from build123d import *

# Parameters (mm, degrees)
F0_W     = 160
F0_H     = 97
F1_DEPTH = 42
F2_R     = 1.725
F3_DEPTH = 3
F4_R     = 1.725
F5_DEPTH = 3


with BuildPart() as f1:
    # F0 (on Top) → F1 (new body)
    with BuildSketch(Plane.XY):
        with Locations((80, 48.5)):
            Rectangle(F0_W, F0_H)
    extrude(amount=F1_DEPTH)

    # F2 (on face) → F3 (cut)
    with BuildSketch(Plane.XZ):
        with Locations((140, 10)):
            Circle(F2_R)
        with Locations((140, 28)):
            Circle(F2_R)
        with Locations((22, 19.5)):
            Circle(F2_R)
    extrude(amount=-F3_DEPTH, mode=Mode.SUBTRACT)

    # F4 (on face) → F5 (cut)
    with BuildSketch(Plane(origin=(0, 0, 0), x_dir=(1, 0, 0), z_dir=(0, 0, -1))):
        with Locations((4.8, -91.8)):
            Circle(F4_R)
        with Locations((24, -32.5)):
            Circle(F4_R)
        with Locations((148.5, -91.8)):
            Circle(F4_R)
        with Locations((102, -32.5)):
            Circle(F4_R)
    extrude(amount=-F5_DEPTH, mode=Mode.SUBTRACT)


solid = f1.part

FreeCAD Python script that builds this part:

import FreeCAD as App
import Part
import Sketcher


def add_polygon(sketch, points):
    """Adds a closed chain of lines whose ends are joined by coincident constraints."""
    first, n = sketch.GeometryCount, len(points)
    for a, b in zip(points, points[1:] + points[:1]):
        sketch.addGeometry(Part.LineSegment(App.Vector(*a, 0), App.Vector(*b, 0)), False)
    for i in range(n):
        sketch.addConstraint(Sketcher.Constraint("Coincident", first + i, 2, first + (i + 1) % n, 1))

doc = App.newDocument("Part")
body = doc.addObject("PartDesign::Body", "Body")

# Sketch on XY plane
sketch1 = body.newObject("Sketcher::SketchObject", "Sketch")
sketch1.AttachmentSupport = (doc.getObject("XY_Plane"), [""])
sketch1.MapMode = "FlatFace"
add_polygon(sketch1, [(0, 97), (0, 0), (160, 0), (160, 97)])  # lines 0-3
sketch1.addConstraint(Sketcher.Constraint("Vertical", 0))
sketch1.addConstraint(Sketcher.Constraint("Horizontal", 1))
sketch1.addConstraint(Sketcher.Constraint("Vertical", 2))
sketch1.addConstraint(Sketcher.Constraint("Horizontal", 3))
sketch1.addConstraint(Sketcher.Constraint("Coincident", 0, 2, -1, 1))
sketch1.addConstraint(Sketcher.Constraint("DistanceX", 1, 1, 1, 2, 160.0))
sketch1.addConstraint(Sketcher.Constraint("DistanceY", 0, 2, 0, 1, 97.0))
pad1 = body.newObject("PartDesign::Pad", "Pad")
pad1.Profile = sketch1
pad1.Length = 42

# Sketch on XZ plane
sketch2 = body.newObject("Sketcher::SketchObject", "Sketch001")
sketch2.AttachmentSupport = (doc.getObject("XZ_Plane"), [""])
sketch2.MapMode = "FlatFace"
sketch2.addGeometry(Part.Circle(App.Vector(140, 10, 0), App.Vector(0, 0, 1), 1.725), False)
sketch2.addGeometry(Part.Circle(App.Vector(140, 28, 0), App.Vector(0, 0, 1), 1.725), False)
sketch2.addGeometry(Part.Circle(App.Vector(22, 19.5, 0), App.Vector(0, 0, 1), 1.725), False)
sketch2.addConstraint(Sketcher.Constraint("Equal", 0, 1))
sketch2.addConstraint(Sketcher.Constraint("Equal", 1, 2))
sketch2.addConstraint(Sketcher.Constraint("Vertical", 0, 3, 1, 3))
sketch2.addConstraint(Sketcher.Constraint("Diameter", 0, 3.45))
sketch2.addConstraint(Sketcher.Constraint("DistanceX", -1, 1, 0, 3, 140.0))
sketch2.addConstraint(Sketcher.Constraint("DistanceY", -1, 1, 0, 3, 10.0))
sketch2.addConstraint(Sketcher.Constraint("DistanceY", -1, 1, 1, 3, 28.0))
sketch2.addConstraint(Sketcher.Constraint("DistanceX", -1, 1, 2, 3, 22.0))
sketch2.addConstraint(Sketcher.Constraint("DistanceY", -1, 1, 2, 3, 19.5))
pocket1 = body.newObject("PartDesign::Pocket", "Pocket")
pocket1.Profile = sketch2
pocket1.Length = 3

# Sketch on XY plane
sketch3 = body.newObject("Sketcher::SketchObject", "Sketch002")
sketch3.AttachmentSupport = (doc.getObject("XY_Plane"), [""])
sketch3.MapMode = "FlatFace"
sketch3.addGeometry(Part.Circle(App.Vector(4.8, 91.8, 0), App.Vector(0, 0, 1), 1.725), False)
sketch3.addGeometry(Part.Circle(App.Vector(24, 32.5, 0), App.Vector(0, 0, 1), 1.725), False)
sketch3.addGeometry(Part.Circle(App.Vector(148.5, 91.8, 0), App.Vector(0, 0, 1), 1.725), False)
sketch3.addGeometry(Part.Circle(App.Vector(102, 32.5, 0), App.Vector(0, 0, 1), 1.725), False)
sketch3.addConstraint(Sketcher.Constraint("Equal", 0, 1))
sketch3.addConstraint(Sketcher.Constraint("Equal", 1, 2))
sketch3.addConstraint(Sketcher.Constraint("Equal", 2, 3))
sketch3.addConstraint(Sketcher.Constraint("Horizontal", 0, 3, 2, 3))
sketch3.addConstraint(Sketcher.Constraint("Horizontal", 1, 3, 3, 3))
sketch3.addConstraint(Sketcher.Constraint("Diameter", 0, 3.45))
sketch3.addConstraint(Sketcher.Constraint("DistanceX", -1, 1, 1, 3, 24.0))
sketch3.addConstraint(Sketcher.Constraint("DistanceX", -1, 1, 3, 3, 102.0))
sketch3.addConstraint(Sketcher.Constraint("DistanceX", -1, 1, 0, 3, 4.8))
sketch3.addConstraint(Sketcher.Constraint("DistanceY", -1, 1, 0, 3, 91.8))
sketch3.addConstraint(Sketcher.Constraint("DistanceY", -1, 1, 1, 3, 32.5))
sketch3.addConstraint(Sketcher.Constraint("DistanceX", -1, 1, 2, 3, 148.5))
pocket2 = body.newObject("PartDesign::Pocket", "Pocket001")
pocket2.Profile = sketch3
pocket2.Length = 3
pocket2.Reversed = True

doc.recompute()
